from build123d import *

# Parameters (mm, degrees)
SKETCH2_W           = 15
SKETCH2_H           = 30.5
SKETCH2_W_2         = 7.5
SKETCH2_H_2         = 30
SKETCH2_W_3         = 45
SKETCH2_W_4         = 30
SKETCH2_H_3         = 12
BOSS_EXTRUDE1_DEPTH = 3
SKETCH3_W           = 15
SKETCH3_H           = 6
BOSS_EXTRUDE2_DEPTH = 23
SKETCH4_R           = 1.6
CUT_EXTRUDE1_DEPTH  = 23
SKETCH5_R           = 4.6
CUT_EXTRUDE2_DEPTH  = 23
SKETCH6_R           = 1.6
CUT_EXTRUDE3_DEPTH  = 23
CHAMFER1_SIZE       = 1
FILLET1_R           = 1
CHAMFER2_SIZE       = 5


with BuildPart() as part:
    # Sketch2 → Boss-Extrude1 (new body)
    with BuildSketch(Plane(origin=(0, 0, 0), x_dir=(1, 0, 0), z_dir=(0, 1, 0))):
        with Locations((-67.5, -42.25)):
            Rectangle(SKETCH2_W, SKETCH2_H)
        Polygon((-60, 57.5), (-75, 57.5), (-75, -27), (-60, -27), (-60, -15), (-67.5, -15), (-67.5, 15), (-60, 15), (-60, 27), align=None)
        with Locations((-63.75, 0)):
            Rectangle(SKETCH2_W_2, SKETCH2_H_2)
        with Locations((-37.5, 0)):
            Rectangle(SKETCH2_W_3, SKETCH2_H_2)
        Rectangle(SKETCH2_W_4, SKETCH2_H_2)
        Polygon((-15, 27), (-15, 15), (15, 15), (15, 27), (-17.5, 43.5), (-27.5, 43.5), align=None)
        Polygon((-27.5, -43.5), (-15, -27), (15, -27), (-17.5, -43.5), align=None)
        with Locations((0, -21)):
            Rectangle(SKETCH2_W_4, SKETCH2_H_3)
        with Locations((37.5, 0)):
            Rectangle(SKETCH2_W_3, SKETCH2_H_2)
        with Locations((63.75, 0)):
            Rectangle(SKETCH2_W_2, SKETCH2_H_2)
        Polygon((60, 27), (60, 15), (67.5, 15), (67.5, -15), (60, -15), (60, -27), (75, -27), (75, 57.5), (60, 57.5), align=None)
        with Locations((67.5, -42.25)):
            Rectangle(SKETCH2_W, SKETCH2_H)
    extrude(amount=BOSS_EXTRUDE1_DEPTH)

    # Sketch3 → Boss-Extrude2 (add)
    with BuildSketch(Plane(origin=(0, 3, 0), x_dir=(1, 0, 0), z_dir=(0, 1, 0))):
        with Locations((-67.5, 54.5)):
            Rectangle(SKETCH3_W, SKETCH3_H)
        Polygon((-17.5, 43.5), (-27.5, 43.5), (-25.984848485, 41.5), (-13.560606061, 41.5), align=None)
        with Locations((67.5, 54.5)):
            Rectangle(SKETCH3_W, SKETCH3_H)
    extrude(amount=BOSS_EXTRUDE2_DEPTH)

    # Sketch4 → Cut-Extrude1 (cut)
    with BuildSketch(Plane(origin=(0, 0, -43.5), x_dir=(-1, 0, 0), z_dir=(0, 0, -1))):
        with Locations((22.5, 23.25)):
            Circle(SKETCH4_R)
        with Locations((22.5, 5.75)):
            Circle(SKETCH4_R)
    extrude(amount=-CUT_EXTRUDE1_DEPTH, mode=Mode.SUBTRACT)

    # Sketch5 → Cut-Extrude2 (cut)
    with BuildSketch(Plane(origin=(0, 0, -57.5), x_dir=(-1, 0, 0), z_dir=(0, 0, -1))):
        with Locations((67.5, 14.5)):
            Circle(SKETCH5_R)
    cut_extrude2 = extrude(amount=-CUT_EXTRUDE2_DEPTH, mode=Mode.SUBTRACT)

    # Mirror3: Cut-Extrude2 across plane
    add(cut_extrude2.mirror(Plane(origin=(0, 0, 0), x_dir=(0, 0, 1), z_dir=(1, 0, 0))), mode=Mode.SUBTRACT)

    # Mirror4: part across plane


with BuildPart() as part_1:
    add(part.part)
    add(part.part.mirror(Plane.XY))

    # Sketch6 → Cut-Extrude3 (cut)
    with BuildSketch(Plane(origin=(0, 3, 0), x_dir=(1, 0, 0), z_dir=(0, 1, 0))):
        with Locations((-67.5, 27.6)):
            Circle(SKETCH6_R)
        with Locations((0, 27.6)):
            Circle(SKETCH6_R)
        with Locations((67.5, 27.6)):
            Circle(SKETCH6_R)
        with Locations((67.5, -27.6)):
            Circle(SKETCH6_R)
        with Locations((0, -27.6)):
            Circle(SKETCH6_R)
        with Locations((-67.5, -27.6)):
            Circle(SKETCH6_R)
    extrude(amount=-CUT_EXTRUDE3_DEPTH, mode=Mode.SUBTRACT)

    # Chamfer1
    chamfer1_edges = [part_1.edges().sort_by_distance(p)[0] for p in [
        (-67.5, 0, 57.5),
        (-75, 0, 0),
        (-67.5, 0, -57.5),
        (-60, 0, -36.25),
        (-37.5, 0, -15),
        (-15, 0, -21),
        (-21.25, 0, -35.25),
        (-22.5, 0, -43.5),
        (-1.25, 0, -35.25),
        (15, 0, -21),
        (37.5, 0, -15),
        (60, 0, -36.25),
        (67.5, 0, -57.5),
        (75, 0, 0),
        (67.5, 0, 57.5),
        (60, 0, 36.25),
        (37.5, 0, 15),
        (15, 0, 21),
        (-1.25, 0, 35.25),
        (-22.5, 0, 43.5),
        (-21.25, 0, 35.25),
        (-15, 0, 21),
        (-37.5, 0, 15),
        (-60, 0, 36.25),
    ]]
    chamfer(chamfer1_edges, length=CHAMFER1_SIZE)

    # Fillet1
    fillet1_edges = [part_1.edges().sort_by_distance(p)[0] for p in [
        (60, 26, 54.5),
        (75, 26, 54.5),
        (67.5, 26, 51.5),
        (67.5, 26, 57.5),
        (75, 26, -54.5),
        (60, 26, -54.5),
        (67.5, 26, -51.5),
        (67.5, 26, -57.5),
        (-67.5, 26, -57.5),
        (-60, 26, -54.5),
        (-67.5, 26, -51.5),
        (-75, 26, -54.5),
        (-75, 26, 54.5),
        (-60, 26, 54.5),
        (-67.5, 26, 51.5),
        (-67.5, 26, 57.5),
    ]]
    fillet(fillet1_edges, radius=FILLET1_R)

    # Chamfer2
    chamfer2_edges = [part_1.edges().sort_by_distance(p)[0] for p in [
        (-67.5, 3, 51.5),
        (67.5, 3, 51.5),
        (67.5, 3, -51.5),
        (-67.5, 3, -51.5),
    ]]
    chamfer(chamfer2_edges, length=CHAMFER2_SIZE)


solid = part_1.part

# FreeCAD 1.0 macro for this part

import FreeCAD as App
import Part
import Sketcher


def edges_at(feature, points):
    """Names of the edges that pass closest to the given points."""
    edges = feature.Shape.Edges
    near = lambda p: min(range(len(edges)), key=lambda i: edges[i].distToShape(Part.Vertex(*p))[0])
    return sorted({f"Edge{near(p) + 1}" for p in points})

doc = App.newDocument("Part")
body = doc.addObject("PartDesign::Body", "Body")

# Sketch on XZ plane
sketch1 = body.newObject("Sketcher::SketchObject", "Sketch")
sketch1.AttachmentSupport = (doc.getObject("XZ_Plane"), [""])
sketch1.MapMode = "FlatFace"
sketch1.addGeometry([
    Part.LineSegment(App.Vector(-75, 58, 0), App.Vector(-60, 58, 0)),  # 0
    Part.LineSegment(App.Vector(-60, 58, 0), App.Vector(-60, 15, 0)),  # 1
    Part.LineSegment(App.Vector(-60, 15, 0), App.Vector(-15, 15, 0)),  # 2
    Part.LineSegment(App.Vector(-15, 15, 0), App.Vector(-15, 27, 0)),  # 3
    Part.LineSegment(App.Vector(-15, 27, 0), App.Vector(-28, 44, 0)),  # 4
    Part.LineSegment(App.Vector(-28, 44, 0), App.Vector(-18, 44, 0)),  # 5
    Part.LineSegment(App.Vector(-18, 44, 0), App.Vector(15, 27, 0)),  # 6
    Part.LineSegment(App.Vector(15, 27, 0), App.Vector(15, 15, 0)),  # 7
    Part.LineSegment(App.Vector(15, 15, 0), App.Vector(60, 15, 0)),  # 8
    Part.LineSegment(App.Vector(60, 15, 0), App.Vector(60, 58, 0)),  # 9
    Part.LineSegment(App.Vector(60, 58, 0), App.Vector(75, 58, 0)),  # 10
    Part.LineSegment(App.Vector(75, 58, 0), App.Vector(75, -58, 0)),  # 11
    Part.LineSegment(App.Vector(75, -58, 0), App.Vector(60, -58, 0)),  # 12
    Part.LineSegment(App.Vector(60, -58, 0), App.Vector(60, -15, 0)),  # 13
    Part.LineSegment(App.Vector(60, -15, 0), App.Vector(15, -15, 0)),  # 14
    Part.LineSegment(App.Vector(15, -15, 0), App.Vector(15, -27, 0)),  # 15
    Part.LineSegment(App.Vector(15, -27, 0), App.Vector(-18, -44, 0)),  # 16
    Part.LineSegment(App.Vector(-18, -44, 0), App.Vector(-28, -44, 0)),  # 17
    Part.LineSegment(App.Vector(-28, -44, 0), App.Vector(-15, -27, 0)),  # 18
    Part.LineSegment(App.Vector(-15, -27, 0), App.Vector(-15, -15, 0)),  # 19
    Part.LineSegment(App.Vector(-15, -15, 0), App.Vector(-60, -15, 0)),  # 20
    Part.LineSegment(App.Vector(-60, -15, 0), App.Vector(-60, -58, 0)),  # 21
    Part.LineSegment(App.Vector(-60, -58, 0), App.Vector(-75, -58, 0)),  # 22
    Part.LineSegment(App.Vector(-75, -58, 0), App.Vector(-75, 58, 0)),  # 23
], False)
sketch1.addConstraint([
    Sketcher.Constraint("Coincident", 0, 2, 1, 1),
    Sketcher.Constraint("Coincident", 1, 2, 2, 1),
    Sketcher.Constraint("Coincident", 2, 2, 3, 1),
    Sketcher.Constraint("Coincident", 3, 2, 4, 1),
    Sketcher.Constraint("Coincident", 4, 2, 5, 1),
    Sketcher.Constraint("Coincident", 5, 2, 6, 1),
    Sketcher.Constraint("Coincident", 6, 2, 7, 1),
    Sketcher.Constraint("Coincident", 7, 2, 8, 1),
    Sketcher.Constraint("Coincident", 8, 2, 9, 1),
    Sketcher.Constraint("Coincident", 9, 2, 10, 1),
    Sketcher.Constraint("Coincident", 10, 2, 11, 1),
    Sketcher.Constraint("Coincident", 11, 2, 12, 1),
    Sketcher.Constraint("Coincident", 12, 2, 13, 1),
    Sketcher.Constraint("Coincident", 13, 2, 14, 1),
    Sketcher.Constraint("Coincident", 14, 2, 15, 1),
    Sketcher.Constraint("Coincident", 15, 2, 16, 1),
    Sketcher.Constraint("Coincident", 16, 2, 17, 1),
    Sketcher.Constraint("Coincident", 17, 2, 18, 1),
    Sketcher.Constraint("Coincident", 18, 2, 19, 1),
    Sketcher.Constraint("Coincident", 19, 2, 20, 1),
    Sketcher.Constraint("Coincident", 20, 2, 21, 1),
    Sketcher.Constraint("Coincident", 21, 2, 22, 1),
    Sketcher.Constraint("Coincident", 22, 2, 23, 1),
    Sketcher.Constraint("Coincident", 23, 2, 0, 1),
    Sketcher.Constraint("Horizontal", 0),
    Sketcher.Constraint("Vertical", 1),
    Sketcher.Constraint("Horizontal", 2),
    Sketcher.Constraint("Vertical", 3),
    Sketcher.Constraint("Horizontal", 5),
    Sketcher.Constraint("Vertical", 7),
    Sketcher.Constraint("Horizontal", 8),
    Sketcher.Constraint("Vertical", 9),
    Sketcher.Constraint("Horizontal", 10),
    Sketcher.Constraint("Vertical", 11),
    Sketcher.Constraint("Horizontal", 12),
    Sketcher.Constraint("Vertical", 13),
    Sketcher.Constraint("Horizontal", 14),
    Sketcher.Constraint("Vertical", 15),
    Sketcher.Constraint("Horizontal", 17),
    Sketcher.Constraint("Vertical", 19),
    Sketcher.Constraint("Horizontal", 20),
    Sketcher.Constraint("Vertical", 21),
    Sketcher.Constraint("Horizontal", 22),
    Sketcher.Constraint("Vertical", 23),
    Sketcher.Constraint("Symmetric", 0, 2, 12, 2, -1, 1),
    Sketcher.Constraint("Symmetric", 2, 2, 14, 2, -1, 1),
    Sketcher.Constraint("Symmetric", 6, 2, 18, 2, -1, 1),
    Sketcher.Constraint("Symmetric", 8, 2, 20, 2, -1, 1),
    Sketcher.Constraint("Symmetric", 10, 2, 22, 2, -1, 1),
    Sketcher.Constraint("Symmetric", 3, 2, 6, 2, -2),
    Sketcher.Constraint("Symmetric", 1, 2, 8, 2, -2),
    Sketcher.Constraint("Symmetric", 5, 2, 16, 2, -1),
    Sketcher.Constraint("Horizontal", 0, 2, 9, 2),
    Sketcher.Constraint("Horizontal", 15, 2, 18, 2),
    Sketcher.Constraint("Vertical", 4, 2, 17, 2),
    Sketcher.Constraint("DistanceX", 0, 1, 0, 2, 15.0),
    Sketcher.Constraint("DistanceX", 2, 1, 2, 2, 45.0),
    Sketcher.Constraint("DistanceX", 5, 1, 5, 2, 10.0),
    Sketcher.Constraint("DistanceY", 3, 1, 3, 2, 12.0),
    Sketcher.Constraint("DistanceY", 11, 2, 11, 1, 115.0),
    Sketcher.Constraint("DistanceY", 1, 2, 1, 1, 42.5),
    Sketcher.Constraint("DistanceX", 0, 2, -1, 1, 60.0),
    Sketcher.Constraint("DistanceY", 4, 2, 0, 2, 14.0),
    Sketcher.Constraint("DistanceX", 4, 2, -1, 1, 27.5),
])
pad1 = body.newObject("PartDesign::Pad", "Pad")
pad1.Profile = sketch1
pad1.Length = 3
pad1.Reversed = True

# Sketch on XZ plane
sketch2 = body.newObject("Sketcher::SketchObject", "Sketch001")
sketch2.AttachmentSupport = (doc.getObject("XZ_Plane"), [""])
sketch2.MapMode = "FlatFace"
sketch2.AttachmentOffset = App.Placement(App.Vector(0, 0, -3), App.Rotation())
sketch2.addGeometry([
    Part.LineSegment(App.Vector(-75, -57.5, 0), App.Vector(-75, -51.5, 0)),  # 0
    Part.LineSegment(App.Vector(-75, -51.5, 0), App.Vector(-60, -51.5, 0)),  # 1
    Part.LineSegment(App.Vector(-60, -51.5, 0), App.Vector(-60, -57.5, 0)),  # 2
    Part.LineSegment(App.Vector(-60, -57.5, 0), App.Vector(-75, -57.5, 0)),  # 3
    Part.LineSegment(App.Vector(-17.5, -43.5, 0), App.Vector(-27.5, -43.5, 0)),  # 4
    Part.LineSegment(App.Vector(-27.5, -43.5, 0), App.Vector(-26, -41.5, 0)),  # 5
    Part.LineSegment(App.Vector(-26, -41.5, 0), App.Vector(-13.6, -41.5, 0)),  # 6
    Part.LineSegment(App.Vector(-13.6, -41.5, 0), App.Vector(-17.5, -43.5, 0)),  # 7
    Part.LineSegment(App.Vector(60, -57.5, 0), App.Vector(60, -51.5, 0)),  # 8
    Part.LineSegment(App.Vector(60, -51.5, 0), App.Vector(75, -51.5, 0)),  # 9
    Part.LineSegment(App.Vector(75, -51.5, 0), App.Vector(75, -57.5, 0)),  # 10
    Part.LineSegment(App.Vector(75, -57.5, 0), App.Vector(60, -57.5, 0)),  # 11
], False)
sketch2.addConstraint([
    Sketcher.Constraint("Coincident", 0, 2, 1, 1),
    Sketcher.Constraint("Coincident", 1, 2, 2, 1),
    Sketcher.Constraint("Coincident", 2, 2, 3, 1),
    Sketcher.Constraint("Coincident", 3, 2, 0, 1),
    Sketcher.Constraint("Coincident", 4, 2, 5, 1),
    Sketcher.Constraint("Coincident", 5, 2, 6, 1),
    Sketcher.Constraint("Coincident", 6, 2, 7, 1),
    Sketcher.Constraint("Coincident", 7, 2, 4, 1),
    Sketcher.Constraint("Coincident", 8, 2, 9, 1),
    Sketcher.Constraint("Coincident", 9, 2, 10, 1),
    Sketcher.Constraint("Coincident", 10, 2, 11, 1),
    Sketcher.Constraint("Coincident", 11, 2, 8, 1),
    Sketcher.Constraint("Vertical", 0),
    Sketcher.Constraint("Horizontal", 1),
    Sketcher.Constraint("Vertical", 2),
    Sketcher.Constraint("Horizontal", 3),
    Sketcher.Constraint("Horizontal", 4),
    Sketcher.Constraint("Horizontal", 6),
    Sketcher.Constraint("Vertical", 8),
    Sketcher.Constraint("Horizontal", 9),
    Sketcher.Constraint("Vertical", 10),
    Sketcher.Constraint("Horizontal", 11),
    Sketcher.Constraint("Symmetric", 1, 2, 8, 2, -2),
    Sketcher.Constraint("Symmetric", 3, 2, 10, 2, -2),
    Sketcher.Constraint("DistanceX", 1, 1, 1, 2, 15.0),
    Sketcher.Constraint("DistanceX", 4, 2, 4, 1, 10.0),
    Sketcher.Constraint("DistanceY", 0, 1, 0, 2, 6.0),
    Sketcher.Constraint("DistanceX", 0, 2, -1, 1, 75.0),
    Sketcher.Constraint("DistanceY", 1, 2, 4, 2, 8.0),
    Sketcher.Constraint("DistanceY", 4, 2, 5, 2, 2.0),
    Sketcher.Constraint("DistanceY", 0, 2, -1, 1, 51.5),
    Sketcher.Constraint("DistanceX", 4, 2, -1, 1, 27.5),
    Sketcher.Constraint("Distance", 5, 2.50912),
    Sketcher.Constraint("Distance", 7, 4.418011),
])
pad2 = body.newObject("PartDesign::Pad", "Pad001")
pad2.Profile = sketch2
pad2.Length = 23
pad2.Reversed = True

# Sketch on XY plane
sketch3 = body.newObject("Sketcher::SketchObject", "Sketch002")
sketch3.AttachmentSupport = (doc.getObject("XY_Plane"), [""])
sketch3.MapMode = "FlatFace"
sketch3.AttachmentOffset = App.Placement(App.Vector(0, 0, -43.5), App.Rotation())
sketch3.addGeometry([
    Part.Circle(App.Vector(-22.5, 23.2, 0), App.Vector(0, 0, 1), 1.6),
    Part.Circle(App.Vector(-22.5, 5.8, 0), App.Vector(0, 0, 1), 1.6),
], False)
sketch3.addConstraint([
    Sketcher.Constraint("Equal", 0, 1),
    Sketcher.Constraint("Vertical", 0, 3, 1, 3),
    Sketcher.Constraint("Diameter", 0, 3.2),
    Sketcher.Constraint("DistanceX", 0, 3, -1, 1, 22.5),
    Sketcher.Constraint("DistanceY", 1, 3, 0, 3, 17.5),
    Sketcher.Constraint("DistanceY", -1, 1, 0, 3, 23.25),
])
pocket1 = body.newObject("PartDesign::Pocket", "Pocket")
pocket1.Profile = sketch3
pocket1.Length = 23
pocket1.Reversed = True

# Sketch on XY plane
sketch4 = body.newObject("Sketcher::SketchObject", "Sketch003")
sketch4.AttachmentSupport = (doc.getObject("XY_Plane"), [""])
sketch4.MapMode = "FlatFace"
sketch4.AttachmentOffset = App.Placement(App.Vector(0, 0, -57.5), App.Rotation())
sketch4.addGeometry(Part.Circle(App.Vector(-67.5, 14.5, 0), App.Vector(0, 0, 1), 4.6), False)
sketch4.addConstraint([
    Sketcher.Constraint("Diameter", 0, 9.2),
    Sketcher.Constraint("DistanceX", 0, 3, -1, 1, 67.5),
    Sketcher.Constraint("DistanceY", -1, 1, 0, 3, 14.5),
])
pocket2 = body.newObject("PartDesign::Pocket", "Pocket001")
pocket2.Profile = sketch4
pocket2.Length = 23
pocket2.Reversed = True
doc.recompute()

mirrored = body.newObject("PartDesign::Mirrored", "Mirrored")
mirrored.Originals = [pocket2]
mirrored.MirrorPlane = (doc.getObject("YZ_Plane"), [""])
body.Tip = mirrored
body2 = doc.addObject("PartDesign::Body", "Body001")
doc.recompute()

body2.BaseFeature = body
doc.recompute()

mirroring = doc.addObject("Part::Mirroring", "Mirroring")
mirroring.Source = body
mirroring.Base = App.Vector(0, 0, 0)
mirroring.Normal = App.Vector(0, 0, 1)
body3 = doc.addObject("PartDesign::Body", "Body002")
body3.BaseFeature = mirroring
boolean = body2.newObject("PartDesign::Boolean", "Boolean")
boolean.Type = "Fuse"
boolean.addObjects([body3])
doc.recompute()

# Sketch on XZ plane
sketch5 = body2.newObject("Sketcher::SketchObject", "Sketch004")
sketch5.AttachmentSupport = (doc.getObject("XZ_Plane001"), [""])
sketch5.MapMode = "FlatFace"
sketch5.AttachmentOffset = App.Placement(App.Vector(0, 0, -3), App.Rotation())
sketch5.addGeometry([
    Part.Circle(App.Vector(-67.5, -27.6, 0), App.Vector(0, 0, 1), 1.6),  # 0
    Part.Circle(App.Vector(0, -27.6, 0), App.Vector(0, 0, 1), 1.6),  # 1
    Part.Circle(App.Vector(67.5, -27.6, 0), App.Vector(0, 0, 1), 1.6),  # 2
    Part.Circle(App.Vector(67.5, 27.6, 0), App.Vector(0, 0, 1), 1.6),  # 3
    Part.Circle(App.Vector(0, 27.6, 0), App.Vector(0, 0, 1), 1.6),  # 4
    Part.Circle(App.Vector(-67.5, 27.6, 0), App.Vector(0, 0, 1), 1.6),  # 5
], False)
sketch5.addConstraint([
    Sketcher.Constraint("Equal", 0, 1),
    Sketcher.Constraint("Equal", 1, 2),
    Sketcher.Constraint("Equal", 2, 3),
    Sketcher.Constraint("Equal", 3, 4),
    Sketcher.Constraint("Equal", 4, 5),
    Sketcher.Constraint("Symmetric", 0, 3, 3, 3, -1, 1),
    Sketcher.Constraint("Symmetric", 1, 3, 4, 3, -1, 1),
    Sketcher.Constraint("Symmetric", 2, 3, 5, 3, -1, 1),
    Sketcher.Constraint("Symmetric", 0, 3, 2, 3, -2),
    Sketcher.Constraint("PointOnObject", 1, 3, -2),
    Sketcher.Constraint("Horizontal", 0, 3, 1, 3),
    Sketcher.Constraint("Diameter", 0, 3.2),
    Sketcher.Constraint("DistanceX", 0, 3, 2, 3, 135.0),
    Sketcher.Constraint("DistanceY", 0, 3, -1, 1, 27.6),
])
pocket3 = body2.newObject("PartDesign::Pocket", "Pocket002")
pocket3.Profile = sketch5
pocket3.Length = 23
pocket3.Reversed = True
doc.recompute()

chamfer = body2.newObject("PartDesign::Chamfer", "Chamfer")
chamfer.Base = (pocket3, edges_at(pocket3, [
    (-67.5, 0, 57.5),
    (-75, 0, 0),
    (-67.5, 0, -57.5),
    (-60, 0, -36.25),
    (-37.5, 0, -15),
    (-15, 0, -21),
    (-21.25, 0, -35.25),
    (-22.5, 0, -43.5),
    (-1.25, 0, -35.25),
    (15, 0, -21),
    (37.5, 0, -15),
    (60, 0, -36.25),
    (67.5, 0, -57.5),
    (75, 0, 0),
    (67.5, 0, 57.5),
    (60, 0, 36.25),
    (37.5, 0, 15),
    (15, 0, 21),
    (-1.25, 0, 35.25),
    (-22.5, 0, 43.5),
    (-21.25, 0, 35.25),
    (-15, 0, 21),
    (-37.5, 0, 15),
    (-60, 0, 36.25),
]))
chamfer.Size = 1
doc.recompute()

fillet = body2.newObject("PartDesign::Fillet", "Fillet")
fillet.Base = (chamfer, edges_at(chamfer, [
    (60, 26, 54.5),
    (75, 26, 54.5),
    (67.5, 26, 51.5),
    (67.5, 26, 57.5),
    (75, 26, -54.5),
    (60, 26, -54.5),
    (67.5, 26, -51.5),
    (67.5, 26, -57.5),
    (-67.5, 26, -57.5),
    (-60, 26, -54.5),
    (-67.5, 26, -51.5),
    (-75, 26, -54.5),
    (-75, 26, 54.5),
    (-60, 26, 54.5),
    (-67.5, 26, 51.5),
    (-67.5, 26, 57.5),
]))
fillet.Radius = 1
doc.recompute()

chamfer2 = body2.newObject("PartDesign::Chamfer", "Chamfer001")
chamfer2.Base = (fillet, edges_at(fillet, [
    (-67.5, 3, 51.5),
    (67.5, 3, 51.5),
    (67.5, 3, -51.5),
    (-67.5, 3, -51.5),
]))
chamfer2.Size = 5
mirroring.Visibility = False

doc.recompute()
